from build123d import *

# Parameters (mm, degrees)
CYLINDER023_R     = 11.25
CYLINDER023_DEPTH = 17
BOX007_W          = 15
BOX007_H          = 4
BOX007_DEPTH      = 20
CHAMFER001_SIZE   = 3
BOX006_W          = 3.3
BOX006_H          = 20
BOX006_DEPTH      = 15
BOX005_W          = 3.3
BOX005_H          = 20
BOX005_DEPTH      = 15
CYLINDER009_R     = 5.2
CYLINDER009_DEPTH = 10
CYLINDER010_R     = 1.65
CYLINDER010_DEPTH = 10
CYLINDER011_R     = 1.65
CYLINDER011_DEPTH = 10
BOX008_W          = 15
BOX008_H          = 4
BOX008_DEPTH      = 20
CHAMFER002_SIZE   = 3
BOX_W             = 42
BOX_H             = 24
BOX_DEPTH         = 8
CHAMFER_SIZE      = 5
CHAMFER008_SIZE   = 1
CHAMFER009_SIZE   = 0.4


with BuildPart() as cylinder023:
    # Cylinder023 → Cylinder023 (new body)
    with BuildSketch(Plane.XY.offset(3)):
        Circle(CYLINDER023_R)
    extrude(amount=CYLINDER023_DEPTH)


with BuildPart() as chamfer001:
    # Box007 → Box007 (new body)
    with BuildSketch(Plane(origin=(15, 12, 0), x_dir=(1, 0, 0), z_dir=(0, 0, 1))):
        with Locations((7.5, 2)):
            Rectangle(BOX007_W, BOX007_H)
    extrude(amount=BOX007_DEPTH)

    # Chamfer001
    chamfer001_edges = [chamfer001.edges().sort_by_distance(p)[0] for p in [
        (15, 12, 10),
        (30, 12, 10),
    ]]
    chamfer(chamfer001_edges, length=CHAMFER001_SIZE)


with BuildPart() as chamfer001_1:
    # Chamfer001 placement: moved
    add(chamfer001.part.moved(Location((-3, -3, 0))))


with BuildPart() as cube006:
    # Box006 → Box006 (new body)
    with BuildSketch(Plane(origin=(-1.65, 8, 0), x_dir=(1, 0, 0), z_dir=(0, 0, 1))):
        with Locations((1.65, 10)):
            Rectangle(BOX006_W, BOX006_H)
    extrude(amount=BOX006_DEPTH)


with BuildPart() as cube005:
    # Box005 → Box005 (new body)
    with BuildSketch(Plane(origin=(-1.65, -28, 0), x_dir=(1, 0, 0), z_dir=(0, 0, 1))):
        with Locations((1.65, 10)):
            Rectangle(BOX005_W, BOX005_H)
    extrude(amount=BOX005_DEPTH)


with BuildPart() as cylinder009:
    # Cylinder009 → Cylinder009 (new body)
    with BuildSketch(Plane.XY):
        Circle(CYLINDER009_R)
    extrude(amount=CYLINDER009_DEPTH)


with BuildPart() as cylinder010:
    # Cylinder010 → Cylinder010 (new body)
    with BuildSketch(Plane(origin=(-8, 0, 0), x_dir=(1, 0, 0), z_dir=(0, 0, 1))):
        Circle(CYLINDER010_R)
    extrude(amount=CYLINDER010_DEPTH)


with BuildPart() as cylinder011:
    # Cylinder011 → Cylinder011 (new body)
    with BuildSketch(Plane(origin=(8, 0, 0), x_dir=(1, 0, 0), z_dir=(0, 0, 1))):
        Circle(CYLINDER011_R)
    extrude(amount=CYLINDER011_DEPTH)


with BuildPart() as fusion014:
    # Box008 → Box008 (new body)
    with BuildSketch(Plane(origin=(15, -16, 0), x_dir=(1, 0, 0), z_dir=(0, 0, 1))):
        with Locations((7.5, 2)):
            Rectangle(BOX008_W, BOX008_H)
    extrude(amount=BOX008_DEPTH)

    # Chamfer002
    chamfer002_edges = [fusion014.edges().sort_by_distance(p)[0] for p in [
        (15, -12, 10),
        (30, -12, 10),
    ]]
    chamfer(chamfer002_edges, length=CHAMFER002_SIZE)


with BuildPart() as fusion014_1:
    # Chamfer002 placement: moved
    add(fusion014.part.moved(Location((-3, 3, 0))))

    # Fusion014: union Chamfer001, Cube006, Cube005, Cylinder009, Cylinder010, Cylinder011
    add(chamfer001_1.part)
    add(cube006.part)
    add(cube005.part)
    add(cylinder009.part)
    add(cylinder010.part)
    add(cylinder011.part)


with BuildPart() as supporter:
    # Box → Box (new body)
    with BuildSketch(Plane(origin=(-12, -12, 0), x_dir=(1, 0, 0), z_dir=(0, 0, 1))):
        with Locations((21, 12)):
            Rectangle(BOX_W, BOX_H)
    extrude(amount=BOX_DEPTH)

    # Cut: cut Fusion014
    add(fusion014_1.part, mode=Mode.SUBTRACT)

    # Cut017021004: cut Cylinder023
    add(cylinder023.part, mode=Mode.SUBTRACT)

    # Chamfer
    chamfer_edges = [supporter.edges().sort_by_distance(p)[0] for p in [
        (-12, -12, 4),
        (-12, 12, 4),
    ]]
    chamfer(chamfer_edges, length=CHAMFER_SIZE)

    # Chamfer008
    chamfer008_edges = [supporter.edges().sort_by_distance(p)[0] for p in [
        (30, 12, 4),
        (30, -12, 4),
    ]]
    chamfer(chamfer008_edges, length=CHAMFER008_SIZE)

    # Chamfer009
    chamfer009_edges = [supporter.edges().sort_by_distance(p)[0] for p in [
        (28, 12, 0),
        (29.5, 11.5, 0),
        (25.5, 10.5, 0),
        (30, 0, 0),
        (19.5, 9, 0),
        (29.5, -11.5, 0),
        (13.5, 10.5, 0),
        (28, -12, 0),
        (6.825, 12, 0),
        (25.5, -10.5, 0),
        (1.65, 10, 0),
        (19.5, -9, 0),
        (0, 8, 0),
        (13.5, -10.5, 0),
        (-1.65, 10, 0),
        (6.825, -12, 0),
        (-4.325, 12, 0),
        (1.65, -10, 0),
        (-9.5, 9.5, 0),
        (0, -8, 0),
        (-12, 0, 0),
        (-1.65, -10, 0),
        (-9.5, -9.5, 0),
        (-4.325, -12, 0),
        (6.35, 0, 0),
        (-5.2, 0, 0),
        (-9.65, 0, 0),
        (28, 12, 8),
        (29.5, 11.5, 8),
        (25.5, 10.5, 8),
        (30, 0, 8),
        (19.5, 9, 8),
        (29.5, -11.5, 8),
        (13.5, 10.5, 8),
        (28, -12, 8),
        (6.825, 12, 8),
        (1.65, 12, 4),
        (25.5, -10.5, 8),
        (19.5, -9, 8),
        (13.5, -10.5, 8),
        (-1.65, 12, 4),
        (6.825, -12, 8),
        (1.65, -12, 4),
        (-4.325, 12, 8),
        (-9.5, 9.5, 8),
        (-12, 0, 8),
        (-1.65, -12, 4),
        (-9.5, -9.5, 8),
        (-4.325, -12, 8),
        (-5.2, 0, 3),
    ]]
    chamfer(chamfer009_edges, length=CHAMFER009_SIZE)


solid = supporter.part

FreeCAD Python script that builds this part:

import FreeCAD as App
import Part
import Sketcher

V = App.Vector
Q = App.Units.Quantity


def edges_at(feature, points):
    """Names of the edges that pass closest to the given points."""
    edges = feature.Shape.Edges
    near = lambda p: min(range(len(edges)), key=lambda i: edges[i].distToShape(Part.Vertex(*p))[0])
    return sorted({f"Edge{near(p) + 1}" for p in points})


def add_polygon(sketch, points):
    """Adds a closed chain of lines whose ends are joined by coincident constraints."""
    first, n = sketch.GeometryCount, len(points)
    for a, b in zip(points, points[1:] + points[:1]):
        sketch.addGeometry(Part.LineSegment(App.Vector(*a, 0), App.Vector(*b, 0)), False)
    for i in range(n):
        sketch.addConstraint(Sketcher.Constraint("Coincident", first + i, 2, first + (i + 1) % n, 1))

doc = App.newDocument("Part")
params = doc.addObject("Spreadsheet::Sheet", "Params")
for row, (alias, value) in enumerate([
    ("sketch1_diameter", "22.5 mm"),
    ("pad1_length", "17 mm"),
    ("sketch2_width", "15 mm"),
    ("sketch2_height", "4 mm"),
    ("pad2_length", "20 mm"),
    ("chamfer_size", "3 mm"),
    ("sketch3_height", "20 mm"),
    ("sketch3_width", "3.3 mm"),
    ("pad3_length", "15 mm"),
    ("sketch4_height", "20 mm"),
    ("sketch4_width", "3.3 mm"),
    ("pad4_length", "15 mm"),
    ("sketch5_diameter", "10.4 mm"),
    ("pad5_length", "10 mm"),
    ("sketch6_diameter", "3.3 mm"),
    ("pad6_length", "10 mm"),
    ("sketch7_diameter", "3.3 mm"),
    ("pad7_length", "10 mm"),
    ("sketch8_width", "15 mm"),
    ("sketch8_height", "4 mm"),
    ("pad8_length", "20 mm"),
    ("chamfer2_size", "3 mm"),
    ("sketch9_width", "42 mm"),
    ("sketch9_height", "24 mm"),
    ("pad9_length", "8 mm"),
    ("chamfer3_size", "5 mm"),
    ("chamfer4_size", "1 mm"),
    ("chamfer5_size", "0.4 mm"),
], start=1):
    params.set(f"A{row}", alias)
    params.set(f"B{row}", "=" + value)
    params.setAlias(f"B{row}", alias)

body = doc.addObject("PartDesign::Body", "Body")

# Sketch on XY plane
sketch1 = body.newObject("Sketcher::SketchObject", "Sketch")
sketch1.AttachmentSupport = (doc.getObject("XY_Plane"), [""])
sketch1.MapMode = "FlatFace"
sketch1.AttachmentOffset = App.Placement(V(0, 0, 3), App.Rotation())
sketch1.addGeometry(Part.Circle(V(0, 0, 0), V(0, 0, 1), 11.25), False)
sketch1.addConstraint([
    Sketcher.Constraint("Coincident", 0, 3, -1, 1),
    Sketcher.Constraint("Diameter", 0, Q("22.5 mm")),
])
sketch1.setExpression("Constraints[1]", "Params.sketch1_diameter")
pad1 = body.newObject("PartDesign::Pad", "Pad")
pad1.Profile = sketch1
pad1.setExpression("Length", "Params.pad1_length")
body2 = doc.addObject("PartDesign::Body", "Body001")

# Sketch on XY plane
sketch2 = body2.newObject("Sketcher::SketchObject", "Sketch001")
sketch2.AttachmentSupport = (doc.getObject("XY_Plane001"), [""])
sketch2.MapMode = "FlatFace"
add_polygon(sketch2, [(15, 16), (15, 12), (30, 12), (30, 16)])  # lines 0-3
sketch2.addConstraint([
    Sketcher.Constraint("Vertical", 0),
    Sketcher.Constraint("Horizontal", 1),
    Sketcher.Constraint("Vertical", 2),
    Sketcher.Constraint("Horizontal", 3),
    Sketcher.Constraint("DistanceX", 1, 1, 1, 2, Q("15 mm")),
    Sketcher.Constraint("DistanceY", 0, 2, 0, 1, Q("4 mm")),
    Sketcher.Constraint("DistanceX", -1, 1, 0, 2, Q("15 mm")),
    Sketcher.Constraint("DistanceY", -1, 1, 0, 2, Q("12 mm")),
])
sketch2.setExpression("Constraints[8]", "Params.sketch2_width")
sketch2.setExpression("Constraints[9]", "Params.sketch2_height")
pad2 = body2.newObject("PartDesign::Pad", "Pad001")
pad2.Profile = sketch2
pad2.setExpression("Length", "Params.pad2_length")
doc.recompute()

chamfer = body2.newObject("PartDesign::Chamfer", "Chamfer")
chamfer.Base = (pad2, edges_at(pad2, [(15, 12, 10), (30, 12, 10)]))
chamfer.setExpression("Size", "Params.chamfer_size")
body3 = doc.addObject("PartDesign::Body", "Body002")
doc.recompute()

body2.Placement = App.Placement(V(-3, -3, 0), App.Rotation(V(0, 0, 1), 0))
boolean = body3.newObject("PartDesign::Boolean", "Boolean")
boolean.Type = "Fuse"
boolean.addObjects([body2])
body4 = doc.addObject("PartDesign::Body", "Body003")

# Sketch on XY plane
sketch3 = body4.newObject("Sketcher::SketchObject", "Sketch002")
sketch3.AttachmentSupport = (doc.getObject("XY_Plane003"), [""])
sketch3.MapMode = "FlatFace"
add_polygon(sketch3, [(-1.65, 28), (-1.65, 8), (1.65, 8), (1.65, 28)])  # lines 0-3
sketch3.addConstraint([
    Sketcher.Constraint("Vertical", 0),
    Sketcher.Constraint("Horizontal", 1),
    Sketcher.Constraint("Vertical", 2),
    Sketcher.Constraint("Horizontal", 3),
    Sketcher.Constraint("DistanceY", 0, 2, 0, 1, Q("20 mm")),
    Sketcher.Constraint("DistanceX", 1, 1, 1, 2, Q("3.3 mm")),
    Sketcher.Constraint("DistanceY", -1, 1, 0, 2, Q("8 mm")),
    Sketcher.Constraint("DistanceX", 0, 2, -1, 1, Q("1.65 mm")),
])
sketch3.setExpression("Constraints[8]", "Params.sketch3_height")
sketch3.setExpression("Constraints[9]", "Params.sketch3_width")
pad3 = body4.newObject("PartDesign::Pad", "Pad002")
pad3.Profile = sketch3
pad3.setExpression("Length", "Params.pad3_length")
body5 = doc.addObject("PartDesign::Body", "Body004")

# Sketch on XY plane
sketch4 = body5.newObject("Sketcher::SketchObject", "Sketch003")
sketch4.AttachmentSupport = (doc.getObject("XY_Plane004"), [""])
sketch4.MapMode = "FlatFace"
add_polygon(sketch4, [(-1.65, -8), (-1.65, -28), (1.65, -28), (1.65, -8)])  # lines 0-3
sketch4.addConstraint([
    Sketcher.Constraint("Vertical", 0),
    Sketcher.Constraint("Horizontal", 1),
    Sketcher.Constraint("Vertical", 2),
    Sketcher.Constraint("Horizontal", 3),
    Sketcher.Constraint("DistanceY", 0, 2, 0, 1, Q("20 mm")),
    Sketcher.Constraint("DistanceX", 1, 1, 1, 2, Q("3.3 mm")),
    Sketcher.Constraint("DistanceY", 0, 2, -1, 1, Q("28 mm")),
    Sketcher.Constraint("DistanceX", 0, 2, -1, 1, Q("1.65 mm")),
])
sketch4.setExpression("Constraints[8]", "Params.sketch4_height")
sketch4.setExpression("Constraints[9]", "Params.sketch4_width")
pad4 = body5.newObject("PartDesign::Pad", "Pad003")
pad4.Profile = sketch4
pad4.setExpression("Length", "Params.pad4_length")
body6 = doc.addObject("PartDesign::Body", "Body005")

# Sketch on XY plane
sketch5 = body6.newObject("Sketcher::SketchObject", "Sketch004")
sketch5.AttachmentSupport = (doc.getObject("XY_Plane005"), [""])
sketch5.MapMode = "FlatFace"
sketch5.addGeometry(Part.Circle(V(0, 0, 0), V(0, 0, 1), 5.2), False)
sketch5.addConstraint([
    Sketcher.Constraint("Coincident", 0, 3, -1, 1),
    Sketcher.Constraint("Diameter", 0, Q("10.4 mm")),
])
sketch5.setExpression("Constraints[1]", "Params.sketch5_diameter")
pad5 = body6.newObject("PartDesign::Pad", "Pad004")
pad5.Profile = sketch5
pad5.setExpression("Length", "Params.pad5_length")
body7 = doc.addObject("PartDesign::Body", "Body006")

# Sketch on XY plane
sketch6 = body7.newObject("Sketcher::SketchObject", "Sketch005")
sketch6.AttachmentSupport = (doc.getObject("XY_Plane006"), [""])
sketch6.MapMode = "FlatFace"
sketch6.addGeometry(Part.Circle(V(-8, 0, 0), V(0, 0, 1), 1.65), False)
sketch6.addConstraint([
    Sketcher.Constraint("PointOnObject", 0, 3, -1),
    Sketcher.Constraint("Diameter", 0, Q("3.3 mm")),
    Sketcher.Constraint("DistanceX", 0, 3, -1, 1, Q("8 mm")),
])
sketch6.setExpression("Constraints[1]", "Params.sketch6_diameter")
pad6 = body7.newObject("PartDesign::Pad", "Pad005")
pad6.Profile = sketch6
pad6.setExpression("Length", "Params.pad6_length")
body8 = doc.addObject("PartDesign::Body", "Body007")

# Sketch on XY plane
sketch7 = body8.newObject("Sketcher::SketchObject", "Sketch006")
sketch7.AttachmentSupport = (doc.getObject("XY_Plane007"), [""])
sketch7.MapMode = "FlatFace"
sketch7.addGeometry(Part.Circle(V(8, 0, 0), V(0, 0, 1), 1.65), False)
sketch7.addConstraint([
    Sketcher.Constraint("PointOnObject", 0, 3, -1),
    Sketcher.Constraint("Diameter", 0, Q("3.3 mm")),
    Sketcher.Constraint("DistanceX", -1, 1, 0, 3, Q("8 mm")),
])
sketch7.setExpression("Constraints[1]", "Params.sketch7_diameter")
pad7 = body8.newObject("PartDesign::Pad", "Pad006")
pad7.Profile = sketch7
pad7.setExpression("Length", "Params.pad7_length")
body9 = doc.addObject("PartDesign::Body", "Body008")

# Sketch on XY plane
sketch8 = body9.newObject("Sketcher::SketchObject", "Sketch007")
sketch8.AttachmentSupport = (doc.getObject("XY_Plane008"), [""])
sketch8.MapMode = "FlatFace"
add_polygon(sketch8, [(15, -12), (15, -16), (30, -16), (30, -12)])  # lines 0-3
sketch8.addConstraint([
    Sketcher.Constraint("Vertical", 0),
    Sketcher.Constraint("Horizontal", 1),
    Sketcher.Constraint("Vertical", 2),
    Sketcher.Constraint("Horizontal", 3),
    Sketcher.Constraint("DistanceX", 1, 1, 1, 2, Q("15 mm")),
    Sketcher.Constraint("DistanceY", 0, 2, 0, 1, Q("4 mm")),
    Sketcher.Constraint("DistanceX", -1, 1, 0, 2, Q("15 mm")),
    Sketcher.Constraint("DistanceY", 0, 2, -1, 1, Q("16 mm")),
])
sketch8.setExpression("Constraints[8]", "Params.sketch8_width")
sketch8.setExpression("Constraints[9]", "Params.sketch8_height")
pad8 = body9.newObject("PartDesign::Pad", "Pad007")
pad8.Profile = sketch8
pad8.setExpression("Length", "Params.pad8_length")
doc.recompute()

chamfer2 = body9.newObject("PartDesign::Chamfer", "Chamfer001")
chamfer2.Base = (pad8, edges_at(pad8, [(15, -12, 10), (30, -12, 10)]))
chamfer2.setExpression("Size", "Params.chamfer2_size")
body10 = doc.addObject("PartDesign::Body", "Body009")
body10.AllowCompound = True
doc.recompute()

body9.Placement = App.Placement(V(-3, 3, 0), App.Rotation(V(0, 0, 1), 0))
boolean2 = body10.newObject("PartDesign::Boolean", "Boolean001")
boolean2.Type = "Fuse"
boolean2.addObjects([body9])
doc.recompute()

boolean3 = body10.newObject("PartDesign::Boolean", "Boolean002")
boolean3.Type = "Fuse"
boolean3.addObjects([body3])
doc.recompute()

boolean4 = body10.newObject("PartDesign::Boolean", "Boolean003")
boolean4.Type = "Fuse"
boolean4.addObjects([body4])
doc.recompute()

boolean5 = body10.newObject("PartDesign::Boolean", "Boolean004")
boolean5.Type = "Fuse"
boolean5.addObjects([body5])
doc.recompute()

boolean6 = body10.newObject("PartDesign::Boolean", "Boolean005")
boolean6.Type = "Fuse"
boolean6.addObjects([body6])
doc.recompute()

boolean7 = body10.newObject("PartDesign::Boolean", "Boolean006")
boolean7.Type = "Fuse"
boolean7.addObjects([body7])
doc.recompute()

boolean8 = body10.newObject("PartDesign::Boolean", "Boolean007")
boolean8.Type = "Fuse"
boolean8.addObjects([body8])
body11 = doc.addObject("PartDesign::Body", "Body010")

# Sketch on XY plane
sketch9 = body11.newObject("Sketcher::SketchObject", "Sketch008")
sketch9.AttachmentSupport = (doc.getObject("XY_Plane010"), [""])
sketch9.MapMode = "FlatFace"
add_polygon(sketch9, [(-12, 12), (-12, -12), (30, -12), (30, 12)])  # lines 0-3
sketch9.addConstraint([
    Sketcher.Constraint("Vertical", 0),
    Sketcher.Constraint("Horizontal", 1),
    Sketcher.Constraint("Vertical", 2),
    Sketcher.Constraint("Horizontal", 3),
    Sketcher.Constraint("DistanceX", 1, 1, 1, 2, Q("42 mm")),
    Sketcher.Constraint("DistanceY", 0, 2, 0, 1, Q("24 mm")),
    Sketcher.Constraint("DistanceX", 0, 2, -1, 1, Q("12 mm")),
    Sketcher.Constraint("DistanceY", 0, 2, -1, 1, Q("12 mm")),
])
sketch9.setExpression("Constraints[8]", "Params.sketch9_width")
sketch9.setExpression("Constraints[9]", "Params.sketch9_height")
pad9 = body11.newObject("PartDesign::Pad", "Pad008")
pad9.Profile = sketch9
pad9.setExpression("Length", "Params.pad9_length")
doc.recompute()

boolean9 = body11.newObject("PartDesign::Boolean", "Boolean008")
boolean9.Type = "Cut"
boolean9.addObjects([body10])
doc.recompute()

boolean10 = body11.newObject("PartDesign::Boolean", "Boolean009")
boolean10.Type = "Cut"
boolean10.addObjects([body])
doc.recompute()

chamfer3 = body11.newObject("PartDesign::Chamfer", "Chamfer002")
chamfer3.Base = (boolean10, edges_at(boolean10, [(-12, -12, 4), (-12, 12, 4)]))
chamfer3.setExpression("Size", "Params.chamfer3_size")
doc.recompute()

chamfer4 = body11.newObject("PartDesign::Chamfer", "Chamfer003")
chamfer4.Base = (chamfer3, edges_at(chamfer3, [(30, 12, 4), (30, -12, 4)]))
chamfer4.setExpression("Size", "Params.chamfer4_size")
doc.recompute()

chamfer5 = body11.newObject("PartDesign::Chamfer", "Chamfer004")
chamfer5.Base = (chamfer4, edges_at(chamfer4, [
    (28, 12, 0),
    (29.5, 11.5, 0),
    (25.5, 10.5, 0),
    (30, 0, 0),
    (19.5, 9, 0),
    (29.5, -11.5, 0),
    (13.5, 10.5, 0),
    (28, -12, 0),
    (6.825, 12, 0),
    (25.5, -10.5, 0),
    (1.65, 10, 0),
    (19.5, -9, 0),
    (0, 8, 0),
    (13.5, -10.5, 0),
    (-1.65, 10, 0),
    (6.825, -12, 0),
    (-4.325, 12, 0),
    (1.65, -10, 0),
    (-9.5, 9.5, 0),
    (0, -8, 0),
    (-12, 0, 0),
    (-1.65, -10, 0),
    (-9.5, -9.5, 0),
    (-4.325, -12, 0),
    (6.35, 0, 0),
    (-5.2, 0, 0),
    (-9.65, 0, 0),
    (28, 12, 8),
    (29.5, 11.5, 8),
    (25.5, 10.5, 8),
    (30, 0, 8),
    (19.5, 9, 8),
    (29.5, -11.5, 8),
    (13.5, 10.5, 8),
    (28, -12, 8),
    (6.825, 12, 8),
    (1.65, 12, 4),
    (25.5, -10.5, 8),
    (19.5, -9, 8),
    (13.5, -10.5, 8),
    (-1.65, 12, 4),
    (6.825, -12, 8),
    (1.65, -12, 4),
    (-4.325, 12, 8),
    (-9.5, 9.5, 8),
    (-12, 0, 8),
    (-1.65, -12, 4),
    (-9.5, -9.5, 8),
    (-4.325, -12, 8),
    (-5.2, 0, 3),
]))
chamfer5.setExpression("Size", "Params.chamfer5_size")

doc.recompute()
